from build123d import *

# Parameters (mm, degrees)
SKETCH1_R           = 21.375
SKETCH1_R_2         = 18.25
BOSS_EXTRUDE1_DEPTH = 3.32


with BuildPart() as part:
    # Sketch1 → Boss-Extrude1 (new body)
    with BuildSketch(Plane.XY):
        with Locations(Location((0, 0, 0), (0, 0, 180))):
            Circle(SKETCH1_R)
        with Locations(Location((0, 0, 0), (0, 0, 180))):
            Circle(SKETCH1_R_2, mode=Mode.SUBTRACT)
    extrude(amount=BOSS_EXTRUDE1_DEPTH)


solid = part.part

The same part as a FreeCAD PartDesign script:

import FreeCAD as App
import Part
import Sketcher
from FreeCAD import Vector

doc = App.newDocument("Part")
body = doc.addObject("PartDesign::Body", "Body")

sketch1 = body.newObject("Sketcher::SketchObject", "Sketch")
sketch1.AttachmentSupport = (doc.getObject("XY_Plane"), [""])
sketch1.MapMode = "FlatFace"
sketch1.addGeometry(Part.Circle(Vector(0, 0, 0), Vector(0, 0, 1), 21), False)
sketch1.addGeometry(Part.Circle(Vector(0, 0, 0), Vector(0, 0, 1), 18), False)
sketch1.addConstraint(Sketcher.Constraint("Coincident", 0, 3, -1, 1))
sketch1.addConstraint(Sketcher.Constraint("Coincident", 1, 3, -1, 1))
sketch1.addConstraint(Sketcher.Constraint("Diameter", 1, 36.5))
sketch1.addConstraint(Sketcher.Constraint("Diameter", 0, 42.75))
pad1 = body.newObject("PartDesign::Pad", "Pad")
pad1.Profile = sketch1
pad1.Length = 3.32

doc.recompute()
